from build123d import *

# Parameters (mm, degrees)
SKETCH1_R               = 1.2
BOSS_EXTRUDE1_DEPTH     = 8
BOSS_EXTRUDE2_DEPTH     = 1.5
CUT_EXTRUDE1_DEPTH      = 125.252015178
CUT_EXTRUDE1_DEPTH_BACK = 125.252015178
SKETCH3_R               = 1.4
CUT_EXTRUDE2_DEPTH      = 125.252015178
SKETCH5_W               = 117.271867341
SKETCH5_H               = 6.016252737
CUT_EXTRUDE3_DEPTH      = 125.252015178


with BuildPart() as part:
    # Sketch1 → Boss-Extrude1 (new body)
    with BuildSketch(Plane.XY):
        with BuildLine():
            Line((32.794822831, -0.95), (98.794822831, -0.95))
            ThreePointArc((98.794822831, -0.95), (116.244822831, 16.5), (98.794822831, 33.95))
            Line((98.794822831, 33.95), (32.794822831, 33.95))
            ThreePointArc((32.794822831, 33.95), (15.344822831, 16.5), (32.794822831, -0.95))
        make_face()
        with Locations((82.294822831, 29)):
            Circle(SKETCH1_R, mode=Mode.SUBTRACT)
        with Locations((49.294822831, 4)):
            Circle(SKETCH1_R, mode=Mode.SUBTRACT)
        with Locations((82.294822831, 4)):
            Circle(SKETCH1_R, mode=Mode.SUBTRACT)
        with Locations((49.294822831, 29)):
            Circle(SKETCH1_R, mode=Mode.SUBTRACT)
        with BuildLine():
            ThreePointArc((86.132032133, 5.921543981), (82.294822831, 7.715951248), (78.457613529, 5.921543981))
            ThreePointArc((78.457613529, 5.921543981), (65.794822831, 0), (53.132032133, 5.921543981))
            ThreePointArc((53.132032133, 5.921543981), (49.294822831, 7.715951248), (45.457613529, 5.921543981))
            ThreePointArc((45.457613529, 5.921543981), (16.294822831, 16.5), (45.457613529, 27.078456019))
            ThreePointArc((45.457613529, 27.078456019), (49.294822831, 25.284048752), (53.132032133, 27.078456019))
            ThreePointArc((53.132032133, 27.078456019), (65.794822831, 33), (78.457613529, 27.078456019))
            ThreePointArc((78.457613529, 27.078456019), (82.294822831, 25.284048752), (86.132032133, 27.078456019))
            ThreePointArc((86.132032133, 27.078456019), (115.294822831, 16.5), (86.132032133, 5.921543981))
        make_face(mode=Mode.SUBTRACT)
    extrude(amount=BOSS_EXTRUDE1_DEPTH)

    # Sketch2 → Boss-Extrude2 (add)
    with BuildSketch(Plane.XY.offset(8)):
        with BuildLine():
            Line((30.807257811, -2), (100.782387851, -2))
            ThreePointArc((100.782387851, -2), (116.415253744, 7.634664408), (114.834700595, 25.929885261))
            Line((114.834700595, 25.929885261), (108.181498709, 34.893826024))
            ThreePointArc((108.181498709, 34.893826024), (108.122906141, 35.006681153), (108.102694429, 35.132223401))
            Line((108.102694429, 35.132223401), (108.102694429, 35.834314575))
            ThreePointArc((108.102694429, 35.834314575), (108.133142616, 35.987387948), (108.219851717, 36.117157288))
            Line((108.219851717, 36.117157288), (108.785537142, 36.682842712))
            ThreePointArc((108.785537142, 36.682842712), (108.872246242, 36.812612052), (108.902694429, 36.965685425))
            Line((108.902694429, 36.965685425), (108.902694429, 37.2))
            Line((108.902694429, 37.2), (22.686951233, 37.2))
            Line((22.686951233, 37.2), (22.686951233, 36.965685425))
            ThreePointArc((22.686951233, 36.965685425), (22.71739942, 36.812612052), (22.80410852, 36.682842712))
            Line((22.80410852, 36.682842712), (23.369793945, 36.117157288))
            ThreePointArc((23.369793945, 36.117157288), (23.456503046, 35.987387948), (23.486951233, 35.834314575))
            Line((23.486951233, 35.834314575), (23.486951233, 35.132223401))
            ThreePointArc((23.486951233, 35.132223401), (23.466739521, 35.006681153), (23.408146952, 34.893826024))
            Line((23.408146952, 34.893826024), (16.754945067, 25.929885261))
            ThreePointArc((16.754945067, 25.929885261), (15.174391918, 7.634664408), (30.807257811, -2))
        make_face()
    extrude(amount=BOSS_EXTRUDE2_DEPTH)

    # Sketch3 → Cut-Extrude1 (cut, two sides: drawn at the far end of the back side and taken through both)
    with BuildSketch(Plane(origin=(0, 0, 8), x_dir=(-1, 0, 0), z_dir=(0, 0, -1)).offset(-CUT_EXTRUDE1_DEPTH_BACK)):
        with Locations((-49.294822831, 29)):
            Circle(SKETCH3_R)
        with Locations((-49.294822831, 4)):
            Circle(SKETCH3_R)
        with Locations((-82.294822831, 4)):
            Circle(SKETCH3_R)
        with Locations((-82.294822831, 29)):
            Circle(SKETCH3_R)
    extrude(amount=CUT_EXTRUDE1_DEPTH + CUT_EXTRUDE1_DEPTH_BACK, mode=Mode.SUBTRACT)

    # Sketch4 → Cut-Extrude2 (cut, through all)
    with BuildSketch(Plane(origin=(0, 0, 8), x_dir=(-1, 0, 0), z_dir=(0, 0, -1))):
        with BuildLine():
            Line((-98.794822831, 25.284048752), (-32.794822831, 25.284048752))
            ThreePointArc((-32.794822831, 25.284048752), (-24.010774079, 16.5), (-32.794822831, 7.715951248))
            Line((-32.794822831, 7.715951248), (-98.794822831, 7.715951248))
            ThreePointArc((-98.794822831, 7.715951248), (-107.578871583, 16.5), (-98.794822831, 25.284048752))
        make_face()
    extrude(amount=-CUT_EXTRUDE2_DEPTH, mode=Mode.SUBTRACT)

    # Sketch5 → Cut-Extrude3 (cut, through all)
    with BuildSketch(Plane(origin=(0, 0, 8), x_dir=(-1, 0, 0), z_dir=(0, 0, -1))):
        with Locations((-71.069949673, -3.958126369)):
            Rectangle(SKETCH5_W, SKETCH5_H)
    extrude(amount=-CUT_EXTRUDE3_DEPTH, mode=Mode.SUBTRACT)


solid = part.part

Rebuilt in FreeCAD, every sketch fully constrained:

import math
import FreeCAD as App
import Part
import Sketcher

V = App.Vector
Q = App.Units.Quantity


def add_polygon(sketch, points):
    """Adds a closed chain of lines whose ends are joined by coincident constraints."""
    first, n = sketch.GeometryCount, len(points)
    for a, b in zip(points, points[1:] + points[:1]):
        sketch.addGeometry(Part.LineSegment(App.Vector(*a, 0), App.Vector(*b, 0)), False)
    for i in range(n):
        sketch.addConstraint(Sketcher.Constraint("Coincident", first + i, 2, first + (i + 1) % n, 1))

doc = App.newDocument("Part")
body = doc.addObject("PartDesign::Body", "Body")

sketch1 = body.newObject("Sketcher::SketchObject", "Sketch")
sketch1.AttachmentSupport = (doc.getObject("XY_Plane"), [""])
sketch1.MapMode = "FlatFace"
sketch1.addGeometry(Part.LineSegment(V(32.8, -0.9, 0), V(98.8, -0.9, 0)), False)
sketch1.addGeometry(Part.ArcOfCircle(Part.Circle(V(98.8, 16.5, 0), V(0, 0, 1), 17.4), math.radians(-90), math.radians(90)), False)
sketch1.addGeometry(Part.LineSegment(V(98.8, 34, 0), V(32.8, 34, 0)), False)
sketch1.addGeometry(Part.ArcOfCircle(Part.Circle(V(32.8, 16.5, 0), V(0, 0, 1), 17.4), math.radians(90), math.radians(270)), False)
sketch1.addGeometry(Part.Circle(V(49.3, 4, 0), V(0, 0, 1), 1.2), False)
sketch1.addGeometry(Part.Circle(V(82.3, 4, 0), V(0, 0, 1), 1.2), False)
sketch1.addGeometry(Part.Circle(V(49.3, 29, 0), V(0, 0, 1), 1.2), False)
sketch1.addGeometry(Part.ArcOfCircle(Part.Circle(V(98.8, 16.5, 0), V(0, 0, 1), 16.5), math.radians(-140), math.radians(140)), False)
sketch1.addGeometry(Part.ArcOfCircle(Part.Circle(V(82.3, 2.7, 0), V(0, 0, 1), 5), math.radians(40), math.radians(140)), False)
sketch1.addGeometry(Part.ArcOfCircle(Part.Circle(V(65.8, 16.5, 0), V(0, 0, 1), 16.5), math.radians(-140), math.radians(-40)), False)
sketch1.addGeometry(Part.ArcOfCircle(Part.Circle(V(49.3, 2.7, 0), V(0, 0, 1), 5), math.radians(40), math.radians(140)), False)
sketch1.addGeometry(Part.ArcOfCircle(Part.Circle(V(32.8, 16.5, 0), V(0, 0, 1), 16.5), math.radians(40), math.radians(320)), False)
sketch1.addGeometry(Part.ArcOfCircle(Part.Circle(V(49.3, 30.3, 0), V(0, 0, 1), 5), math.radians(-140), math.radians(-40)), False)
sketch1.addGeometry(Part.ArcOfCircle(Part.Circle(V(65.8, 16.5, 0), V(0, 0, 1), 16.5), math.radians(40), math.radians(140)), False)
sketch1.addGeometry(Part.ArcOfCircle(Part.Circle(V(82.3, 30.3, 0), V(0, 0, 1), 5), math.radians(-140), math.radians(-40)), False)
sketch1.addGeometry(Part.Circle(V(82.3, 29, 0), V(0, 0, 1), 1.2), False)
sketch1.addConstraint(Sketcher.Constraint("Tangent", 0, 2, 1, 1))
sketch1.addConstraint(Sketcher.Constraint("Tangent", 1, 2, 2, 1))
sketch1.addConstraint(Sketcher.Constraint("Tangent", 2, 2, 3, 1))
sketch1.addConstraint(Sketcher.Constraint("Tangent", 3, 2, 0, 1))
sketch1.addConstraint(Sketcher.Constraint("Tangent", 7, 1, 8, 1))
sketch1.addConstraint(Sketcher.Constraint("Tangent", 8, 2, 9, 2))
sketch1.addConstraint(Sketcher.Constraint("Tangent", 9, 1, 10, 1))
sketch1.addConstraint(Sketcher.Constraint("Tangent", 10, 2, 11, 2))
sketch1.addConstraint(Sketcher.Constraint("Tangent", 11, 1, 12, 1))
sketch1.addConstraint(Sketcher.Constraint("Tangent", 12, 2, 13, 2))
sketch1.addConstraint(Sketcher.Constraint("Tangent", 13, 1, 14, 1))
sketch1.addConstraint(Sketcher.Constraint("Tangent", 14, 2, 7, 2))
sketch1.addConstraint(Sketcher.Constraint("Horizontal", 0))
sketch1.addConstraint(Sketcher.Constraint("Horizontal", 2))
sketch1.addConstraint(Sketcher.Constraint("Coincident", 7, 3, 1, 3))
sketch1.addConstraint(Sketcher.Constraint("Coincident", 11, 3, 3, 3))
sketch1.addConstraint(Sketcher.Constraint("Coincident", 13, 3, 9, 3))
sketch1.addConstraint(Sketcher.Constraint("Equal", 4, 5))
sketch1.addConstraint(Sketcher.Constraint("Equal", 5, 6))
sketch1.addConstraint(Sketcher.Constraint("Equal", 7, 9))
sketch1.addConstraint(Sketcher.Constraint("Equal", 8, 10))
sketch1.addConstraint(Sketcher.Constraint("Equal", 9, 11))
sketch1.addConstraint(Sketcher.Constraint("Equal", 10, 12))
sketch1.addConstraint(Sketcher.Constraint("Equal", 11, 13))
sketch1.addConstraint(Sketcher.Constraint("Equal", 12, 14))
sketch1.addConstraint(Sketcher.Constraint("Equal", 6, 15))
sketch1.addConstraint(Sketcher.Constraint("Horizontal", 4, 3, 5, 3))
sketch1.addConstraint(Sketcher.Constraint("Horizontal", 7, 3, 9, 3))
sketch1.addConstraint(Sketcher.Constraint("Horizontal", 8, 3, 10, 3))
sketch1.addConstraint(Sketcher.Constraint("Horizontal", 6, 3, 15, 3))
sketch1.addConstraint(Sketcher.Constraint("Vertical", 4, 3, 6, 3))
sketch1.addConstraint(Sketcher.Constraint("Vertical", 5, 3, 8, 3))
sketch1.addConstraint(Sketcher.Constraint("Vertical", 6, 3, 10, 3))
sketch1.addConstraint(Sketcher.Constraint("Vertical", 14, 3, 15, 3))
sketch1.addConstraint(Sketcher.Constraint("Radius", 8, Q("5 mm")))
sketch1.addConstraint(Sketcher.Constraint("Diameter", 4, Q("2.4 mm")))
sketch1.addConstraint(Sketcher.Constraint("Radius", 7, Q("16.5 mm")))
sketch1.addConstraint(Sketcher.Constraint("DistanceX", 0, 1, 0, 2, Q("66 mm")))
sketch1.addConstraint(Sketcher.Constraint("Radius", 1, Q("17.45 mm")))
sketch1.addConstraint(Sketcher.Constraint("DistanceY", -1, 1, 4, 3, Q("4 mm")))
sketch1.addConstraint(Sketcher.Constraint("DistanceY", -1, 1, 6, 3, Q("29 mm")))
sketch1.addConstraint(Sketcher.Constraint("DistanceY", -1, 1, 1, 3, Q("16.5 mm")))
sketch1.addConstraint(Sketcher.Constraint("DistanceX", -1, 1, 1, 3, Q("98.794823 mm")))
pad1 = body.newObject("PartDesign::Pad", "Pad")
pad1.Profile = sketch1
pad1.Length = 8

sketch2 = body.newObject("Sketcher::SketchObject", "Sketch001")
sketch2.AttachmentSupport = (doc.getObject("XY_Plane"), [""])
sketch2.MapMode = "FlatFace"
sketch2.AttachmentOffset = App.Placement(V(0, 0, 8), App.Rotation())
sketch2.addGeometry(Part.LineSegment(V(30.81, -2, 0), V(100.78, -2, 0)), False)
sketch2.addGeometry(Part.ArcOfCircle(Part.Circle(V(100.78, 15.5, 0), V(0, 0, 1), 17.5), math.radians(-90), math.radians(37)), False)
sketch2.addGeometry(Part.LineSegment(V(114.83, 25.93, 0), V(108.18, 34.89, 0)), False)
sketch2.addGeometry(Part.ArcOfCircle(Part.Circle(V(108.5, 35.13, 0), V(0, 0, 1), 0.4), math.radians(-180), math.radians(-143)), False)
sketch2.addGeometry(Part.LineSegment(V(108.1, 35.13, 0), V(108.1, 35.83, 0)), False)
sketch2.addGeometry(Part.ArcOfCircle(Part.Circle(V(108.5, 35.83, 0), V(0, 0, 1), 0.4), math.radians(135), math.radians(180)), False)
sketch2.addGeometry(Part.LineSegment(V(108.22, 36.12, 0), V(108.79, 36.68, 0)), False)
sketch2.addGeometry(Part.ArcOfCircle(Part.Circle(V(108.5, 36.97, 0), V(0, 0, 1), 0.4), math.radians(-45), math.radians(0)), False)
sketch2.addGeometry(Part.LineSegment(V(108.9, 36.97, 0), V(108.9, 37.2, 0)), False)
sketch2.addGeometry(Part.LineSegment(V(108.9, 37.2, 0), V(22.69, 37.2, 0)), False)
sketch2.addGeometry(Part.LineSegment(V(22.69, 37.2, 0), V(22.69, 36.97, 0)), False)
sketch2.addGeometry(Part.ArcOfCircle(Part.Circle(V(23.09, 36.97, 0), V(0, 0, 1), 0.4), math.radians(-180), math.radians(-135)), False)
sketch2.addGeometry(Part.LineSegment(V(22.8, 36.68, 0), V(23.37, 36.12, 0)), False)
sketch2.addGeometry(Part.ArcOfCircle(Part.Circle(V(23.09, 35.83, 0), V(0, 0, 1), 0.4), math.radians(0), math.radians(45)), False)
sketch2.addGeometry(Part.LineSegment(V(23.49, 35.83, 0), V(23.49, 35.13, 0)), False)
sketch2.addGeometry(Part.ArcOfCircle(Part.Circle(V(23.09, 35.13, 0), V(0, 0, 1), 0.4), math.radians(-37), math.radians(0)), False)
sketch2.addGeometry(Part.LineSegment(V(23.41, 34.89, 0), V(16.75, 25.93, 0)), False)
sketch2.addGeometry(Part.ArcOfCircle(Part.Circle(V(30.81, 15.5, 0), V(0, 0, 1), 17.5), math.radians(143), math.radians(270)), False)
sketch2.addConstraint(Sketcher.Constraint("Tangent", 0, 2, 1, 1))
sketch2.addConstraint(Sketcher.Constraint("Tangent", 1, 2, 2, 1))
sketch2.addConstraint(Sketcher.Constraint("Tangent", 2, 2, 3, 2))
sketch2.addConstraint(Sketcher.Constraint("Tangent", 3, 1, 4, 1))
sketch2.addConstraint(Sketcher.Constraint("Tangent", 4, 2, 5, 2))
sketch2.addConstraint(Sketcher.Constraint("Tangent", 5, 1, 6, 1))
sketch2.addConstraint(Sketcher.Constraint("Tangent", 6, 2, 7, 1))
sketch2.addConstraint(Sketcher.Constraint("Tangent", 7, 2, 8, 1))
sketch2.addConstraint(Sketcher.Constraint("Coincident", 8, 2, 9, 1))
sketch2.addConstraint(Sketcher.Constraint("Coincident", 9, 2, 10, 1))
sketch2.addConstraint(Sketcher.Constraint("Tangent", 10, 2, 11, 1))
sketch2.addConstraint(Sketcher.Constraint("Tangent", 11, 2, 12, 1))
sketch2.addConstraint(Sketcher.Constraint("Tangent", 12, 2, 13, 2))
sketch2.addConstraint(Sketcher.Constraint("Tangent", 13, 1, 14, 1))
sketch2.addConstraint(Sketcher.Constraint("Tangent", 14, 2, 15, 2))
sketch2.addConstraint(Sketcher.Constraint("Tangent", 15, 1, 16, 1))
sketch2.addConstraint(Sketcher.Constraint("Tangent", 16, 2, 17, 1))
sketch2.addConstraint(Sketcher.Constraint("Tangent", 17, 2, 0, 1))
sketch2.addConstraint(Sketcher.Constraint("Horizontal", 0))
sketch2.addConstraint(Sketcher.Constraint("Vertical", 4))
sketch2.addConstraint(Sketcher.Constraint("Vertical", 8))
sketch2.addConstraint(Sketcher.Constraint("Horizontal", 9))
sketch2.addConstraint(Sketcher.Constraint("Vertical", 10))
sketch2.addConstraint(Sketcher.Constraint("Vertical", 14))
sketch2.addConstraint(Sketcher.Constraint("Equal", 3, 5))
sketch2.addConstraint(Sketcher.Constraint("Equal", 5, 7))
sketch2.addConstraint(Sketcher.Constraint("Equal", 7, 11))
sketch2.addConstraint(Sketcher.Constraint("Equal", 11, 13))
sketch2.addConstraint(Sketcher.Constraint("Equal", 13, 15))
sketch2.addConstraint(Sketcher.Constraint("Equal", 1, 17))
sketch2.addConstraint(Sketcher.Constraint("Perpendicular", 6, 12))
sketch2.addConstraint(Sketcher.Constraint("Horizontal", 7, 3, 11, 3))
sketch2.addConstraint(Sketcher.Constraint("Horizontal", 5, 3, 13, 3))
sketch2.addConstraint(Sketcher.Constraint("Horizontal", 3, 3, 15, 3))
sketch2.addConstraint(Sketcher.Constraint("Horizontal", 6, 2, 11, 2))
sketch2.addConstraint(Sketcher.Constraint("Horizontal", 2, 2, 15, 1))
sketch2.addConstraint(Sketcher.Constraint("Vertical", 5, 3, 7, 3))
sketch2.addConstraint(Sketcher.Constraint("Radius", 1, Q("17.5 mm")))
sketch2.addConstraint(Sketcher.Constraint("Radius", 3, Q("0.4 mm")))
sketch2.addConstraint(Sketcher.Constraint("DistanceY", 0, 2, -1, 1, Q("2 mm")))
sketch2.addConstraint(Sketcher.Constraint("DistanceY", -1, 1, 8, 2, Q("37.2 mm")))
sketch2.addConstraint(Sketcher.Constraint("DistanceX", 0, 1, 0, 2, Q("69.97513 mm")))
sketch2.addConstraint(Sketcher.Constraint("DistanceY", 4, 1, 4, 2, Q("0.702091 mm")))
sketch2.addConstraint(Sketcher.Constraint("DistanceX", -1, 1, 1, 2, Q("114.834701 mm")))
sketch2.addConstraint(Sketcher.Constraint("DistanceX", -1, 1, 2, 2, Q("108.181499 mm")))
sketch2.addConstraint(Sketcher.Constraint("DistanceY", 1, 2, 7, 3, Q("11.0358 mm")))
pad2 = body.newObject("PartDesign::Pad", "Pad001")
pad2.Profile = sketch2
pad2.Length = 1.5

sketch3 = body.newObject("Sketcher::SketchObject", "Sketch002")
sketch3.AttachmentSupport = (doc.getObject("XY_Plane"), [""])
sketch3.MapMode = "FlatFace"
sketch3.AttachmentOffset = App.Placement(V(0, 0, 8), App.Rotation())
sketch3.addGeometry(Part.Circle(V(49.3, 29, 0), V(0, 0, 1), 1.4), False)
sketch3.addGeometry(Part.Circle(V(49.3, 4, 0), V(0, 0, 1), 1.4), False)
sketch3.addGeometry(Part.Circle(V(82.3, 4, 0), V(0, 0, 1), 1.4), False)
sketch3.addGeometry(Part.Circle(V(82.3, 29, 0), V(0, 0, 1), 1.4), False)
sketch3.addConstraint(Sketcher.Constraint("Equal", 0, 1))
sketch3.addConstraint(Sketcher.Constraint("Equal", 1, 2))
sketch3.addConstraint(Sketcher.Constraint("Equal", 2, 3))
sketch3.addConstraint(Sketcher.Constraint("Horizontal", 1, 3, 2, 3))
sketch3.addConstraint(Sketcher.Constraint("Horizontal", 0, 3, 3, 3))
sketch3.addConstraint(Sketcher.Constraint("Vertical", 0, 3, 1, 3))
sketch3.addConstraint(Sketcher.Constraint("Vertical", 2, 3, 3, 3))
sketch3.addConstraint(Sketcher.Constraint("Diameter", 0, Q("2.8 mm")))
sketch3.addConstraint(Sketcher.Constraint("DistanceY", -1, 1, 0, 3, Q("29 mm")))
sketch3.addConstraint(Sketcher.Constraint("DistanceY", -1, 1, 1, 3, Q("4 mm")))
sketch3.addConstraint(Sketcher.Constraint("DistanceX", 1, 3, 2, 3, Q("33 mm")))
sketch3.addConstraint(Sketcher.Constraint("DistanceX", -1, 1, 0, 3, Q("49.294823 mm")))
pocket1 = body.newObject("PartDesign::Pocket", "Pocket")
pocket1.Profile = sketch3
pocket1.Type = "ThroughAll"
pocket1.Midplane = True

sketch4 = body.newObject("Sketcher::SketchObject", "Sketch003")
sketch4.AttachmentSupport = (doc.getObject("XY_Plane"), [""])
sketch4.MapMode = "FlatFace"
sketch4.AttachmentOffset = App.Placement(V(0, 0, 8), App.Rotation())
sketch4.addGeometry(Part.LineSegment(V(33, 25, 0), V(99, 25, 0)), False)
sketch4.addGeometry(Part.ArcOfCircle(Part.Circle(V(99, 16, 0), V(0, 0, 1), 9), math.radians(-90), math.radians(90)), False)
sketch4.addGeometry(Part.LineSegment(V(99, 8, 0), V(33, 8, 0)), False)
sketch4.addGeometry(Part.ArcOfCircle(Part.Circle(V(33, 16, 0), V(0, 0, 1), 9), math.radians(90), math.radians(270)), False)
sketch4.addConstraint(Sketcher.Constraint("Tangent", 0, 2, 1, 2))
sketch4.addConstraint(Sketcher.Constraint("Tangent", 1, 1, 2, 1))
sketch4.addConstraint(Sketcher.Constraint("Tangent", 2, 2, 3, 2))
sketch4.addConstraint(Sketcher.Constraint("Tangent", 3, 1, 0, 1))
sketch4.addConstraint(Sketcher.Constraint("Horizontal", 0))
sketch4.addConstraint(Sketcher.Constraint("Horizontal", 2))
sketch4.addConstraint(Sketcher.Constraint("DistanceX", 0, 1, 0, 2, Q("66 mm")))
sketch4.addConstraint(Sketcher.Constraint("DistanceY", -1, 1, 1, 3, Q("16.5 mm")))
sketch4.addConstraint(Sketcher.Constraint("Radius", 1, Q("8.784049 mm")))
sketch4.addConstraint(Sketcher.Constraint("DistanceX", -1, 1, 1, 3, Q("98.794823 mm")))
pocket2 = body.newObject("PartDesign::Pocket", "Pocket001")
pocket2.Profile = sketch4
pocket2.Type = "ThroughAll"
pocket2.Reversed = True

sketch5 = body.newObject("Sketcher::SketchObject", "Sketch004")
sketch5.AttachmentSupport = (doc.getObject("XY_Plane"), [""])
sketch5.MapMode = "FlatFace"
sketch5.AttachmentOffset = App.Placement(V(0, 0, 8), App.Rotation())
add_polygon(sketch5, [(130, -1), (130, -7), (12, -7), (12, -1)])
sketch5.addConstraint(Sketcher.Constraint("Vertical", 0))
sketch5.addConstraint(Sketcher.Constraint("Horizontal", 1))
sketch5.addConstraint(Sketcher.Constraint("Vertical", 2))
sketch5.addConstraint(Sketcher.Constraint("Horizontal", 3))
sketch5.addConstraint(Sketcher.Constraint("DistanceY", 2, 2, -1, 1, Q("0.95 mm")))
sketch5.addConstraint(Sketcher.Constraint("DistanceX", 1, 2, 1, 1, Q("117.271867 mm")))
sketch5.addConstraint(Sketcher.Constraint("DistanceY", 0, 2, 0, 1, Q("6.016253 mm")))
sketch5.addConstraint(Sketcher.Constraint("DistanceX", -1, 1, 0, 2, Q("129.705883 mm")))
pocket3 = body.newObject("PartDesign::Pocket", "Pocket002")
pocket3.Profile = sketch5
pocket3.Type = "ThroughAll"
pocket3.Reversed = True

doc.recompute()
